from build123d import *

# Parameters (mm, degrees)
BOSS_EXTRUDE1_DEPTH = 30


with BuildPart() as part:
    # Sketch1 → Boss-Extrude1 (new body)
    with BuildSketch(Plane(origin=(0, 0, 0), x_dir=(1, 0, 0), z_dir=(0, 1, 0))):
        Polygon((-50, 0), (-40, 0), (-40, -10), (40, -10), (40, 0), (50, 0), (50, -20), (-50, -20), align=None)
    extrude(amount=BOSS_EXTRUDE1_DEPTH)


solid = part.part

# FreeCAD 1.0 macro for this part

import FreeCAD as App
import Part
import Sketcher


def add_polygon(sketch, points):
    """Adds a closed chain of lines whose ends are joined by coincident constraints."""
    first, n = sketch.GeometryCount, len(points)
    for a, b in zip(points, points[1:] + points[:1]):
        sketch.addGeometry(Part.LineSegment(App.Vector(*a, 0), App.Vector(*b, 0)), False)
    for i in range(n):
        sketch.addConstraint(Sketcher.Constraint("Coincident", first + i, 2, first + (i + 1) % n, 1))

doc = App.newDocument("Part")
body = doc.addObject("PartDesign::Body", "Body")

sketch1 = body.newObject("Sketcher::SketchObject", "Sketch")
sketch1.AttachmentSupport = (doc.getObject("XZ_Plane"), [""])
sketch1.MapMode = "FlatFace"
add_polygon(sketch1, [(-40, 0), (-50, 0), (-50, 20), (50, 20), (50, 0), (40, 0), (40, 10), (-40, 10)])
sketch1.addConstraint([
    Sketcher.Constraint("Horizontal", 0),
    Sketcher.Constraint("Vertical", 1),
    Sketcher.Constraint("Horizontal", 2),
    Sketcher.Constraint("Vertical", 3),
    Sketcher.Constraint("Horizontal", 4),
    Sketcher.Constraint("Vertical", 5),
    Sketcher.Constraint("Horizontal", 6),
    Sketcher.Constraint("Vertical", 7),
    Sketcher.Constraint("Symmetric", 0, 2, 3, 2, -1, 1),
    Sketcher.Constraint("Symmetric", 4, 2, 7, 2, -2),
    Sketcher.Constraint("Equal", 4, 5),
    Sketcher.Constraint("DistanceX", 0, 2, 0, 1, 10.0),
    Sketcher.Constraint("DistanceX", 2, 1, 2, 2, 100.0),
    Sketcher.Constraint("DistanceY", 1, 1, 1, 2, 20.0),
])
pad1 = body.newObject("PartDesign::Pad", "Pad")
pad1.Profile = sketch1
pad1.Length = 30
pad1.Reversed = True

doc.recompute()
